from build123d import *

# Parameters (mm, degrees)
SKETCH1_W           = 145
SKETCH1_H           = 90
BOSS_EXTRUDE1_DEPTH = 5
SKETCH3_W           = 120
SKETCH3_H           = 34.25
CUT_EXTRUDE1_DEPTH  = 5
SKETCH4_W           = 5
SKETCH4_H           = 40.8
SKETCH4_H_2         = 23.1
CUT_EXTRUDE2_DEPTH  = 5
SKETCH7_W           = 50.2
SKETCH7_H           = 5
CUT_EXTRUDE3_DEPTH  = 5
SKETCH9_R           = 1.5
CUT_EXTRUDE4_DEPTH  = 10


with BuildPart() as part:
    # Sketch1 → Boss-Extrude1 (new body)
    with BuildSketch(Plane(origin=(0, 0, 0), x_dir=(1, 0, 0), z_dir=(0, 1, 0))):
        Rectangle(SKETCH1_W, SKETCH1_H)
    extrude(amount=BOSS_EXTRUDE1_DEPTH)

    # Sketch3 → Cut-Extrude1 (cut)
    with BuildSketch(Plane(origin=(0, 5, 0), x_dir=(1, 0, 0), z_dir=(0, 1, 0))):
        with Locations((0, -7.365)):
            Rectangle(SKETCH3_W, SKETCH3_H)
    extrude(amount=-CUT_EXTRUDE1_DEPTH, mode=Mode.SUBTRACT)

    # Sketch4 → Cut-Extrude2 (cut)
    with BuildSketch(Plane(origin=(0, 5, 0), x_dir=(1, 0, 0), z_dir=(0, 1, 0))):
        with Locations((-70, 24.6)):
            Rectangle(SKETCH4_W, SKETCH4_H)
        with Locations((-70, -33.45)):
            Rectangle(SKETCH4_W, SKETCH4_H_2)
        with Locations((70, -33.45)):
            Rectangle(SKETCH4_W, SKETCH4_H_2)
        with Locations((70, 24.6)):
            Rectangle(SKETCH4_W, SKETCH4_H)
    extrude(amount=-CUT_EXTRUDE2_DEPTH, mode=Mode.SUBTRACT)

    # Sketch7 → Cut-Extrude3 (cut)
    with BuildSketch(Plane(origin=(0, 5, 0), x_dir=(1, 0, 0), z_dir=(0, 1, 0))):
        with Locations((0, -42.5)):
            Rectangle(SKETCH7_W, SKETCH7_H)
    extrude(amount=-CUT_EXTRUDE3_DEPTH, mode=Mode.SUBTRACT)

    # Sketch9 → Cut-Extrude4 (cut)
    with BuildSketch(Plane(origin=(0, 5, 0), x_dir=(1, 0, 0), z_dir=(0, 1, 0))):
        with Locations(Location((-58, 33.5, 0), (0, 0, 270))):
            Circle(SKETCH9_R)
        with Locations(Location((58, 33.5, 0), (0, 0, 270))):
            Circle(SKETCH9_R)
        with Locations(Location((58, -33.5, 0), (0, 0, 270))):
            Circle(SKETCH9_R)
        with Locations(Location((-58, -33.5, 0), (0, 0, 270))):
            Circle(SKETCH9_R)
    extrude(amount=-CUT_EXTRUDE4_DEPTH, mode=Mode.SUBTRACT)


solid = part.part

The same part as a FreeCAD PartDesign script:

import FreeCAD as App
import Part
import Sketcher
Q = App.Units.Quantity


def add_polygon(sketch, points):
    """Adds a closed chain of lines whose ends are joined by coincident constraints."""
    first, n = sketch.GeometryCount, len(points)
    for a, b in zip(points, points[1:] + points[:1]):
        sketch.addGeometry(Part.LineSegment(App.Vector(*a, 0), App.Vector(*b, 0)), False)
    for i in range(n):
        sketch.addConstraint(Sketcher.Constraint("Coincident", first + i, 2, first + (i + 1) % n, 1))

doc = App.newDocument("Part")
body = doc.addObject("PartDesign::Body", "Body")

sketch1 = body.newObject("Sketcher::SketchObject", "Sketch")
sketch1.AttachmentSupport = (doc.getObject("XZ_Plane"), [""])
sketch1.MapMode = "FlatFace"
add_polygon(sketch1, [(-72, -45), (-72, 45), (72, 45), (72, -45)])
sketch1.addConstraint([
    Sketcher.Constraint("Vertical", 0),
    Sketcher.Constraint("Horizontal", 1),
    Sketcher.Constraint("Vertical", 2),
    Sketcher.Constraint("Horizontal", 3),
    Sketcher.Constraint("Symmetric", 0, 2, 2, 2, -1, 1),
    Sketcher.Constraint("DistanceX", 1, 1, 1, 2, Q("145 mm")),
    Sketcher.Constraint("DistanceY", 0, 1, 0, 2, Q("90 mm")),
])
pad1 = body.newObject("PartDesign::Pad", "Pad")
pad1.Profile = sketch1
pad1.Length = 5
pad1.Reversed = True

sketch2 = body.newObject("Sketcher::SketchObject", "Sketch001")
sketch2.AttachmentSupport = (doc.getObject("XZ_Plane"), [""])
sketch2.MapMode = "FlatFace"
sketch2.AttachmentOffset = App.Placement(App.Vector(0, 0, -5), App.Rotation())
add_polygon(sketch2, [(-60, -10), (-60, 24), (60, 24), (60, -10)])
sketch2.addConstraint([
    Sketcher.Constraint("Vertical", 0),
    Sketcher.Constraint("Horizontal", 1),
    Sketcher.Constraint("Vertical", 2),
    Sketcher.Constraint("Horizontal", 3),
    Sketcher.Constraint("DistanceX", 1, 1, 1, 2, Q("120 mm")),
    Sketcher.Constraint("DistanceX", 0, 2, -1, 1, Q("60 mm")),
    Sketcher.Constraint("DistanceY", 0, 1, 0, 2, Q("34.25 mm")),
    Sketcher.Constraint("DistanceY", -1, 1, 0, 2, Q("24.49 mm")),
])
pocket1 = body.newObject("PartDesign::Pocket", "Pocket")
pocket1.Profile = sketch2
pocket1.Length = 5
pocket1.Reversed = True

sketch3 = body.newObject("Sketcher::SketchObject", "Sketch002")
sketch3.AttachmentSupport = (doc.getObject("XZ_Plane"), [""])
sketch3.MapMode = "FlatFace"
sketch3.AttachmentOffset = App.Placement(App.Vector(0, 0, -5), App.Rotation())
add_polygon(sketch3, [(-72, -45), (-72, -4), (-68, -4), (-68, -45)])
add_polygon(sketch3, [(-72, 22), (-72, 45), (-68, 45), (-68, 22)])
add_polygon(sketch3, [(68, 22), (68, 45), (72, 45), (72, 22)])
add_polygon(sketch3, [(68, -45), (68, -4), (72, -4), (72, -45)])
sketch3.addConstraint([
    Sketcher.Constraint("Vertical", 0),
    Sketcher.Constraint("Horizontal", 1),
    Sketcher.Constraint("Vertical", 2),
    Sketcher.Constraint("Horizontal", 3),
    Sketcher.Constraint("Vertical", 4),
    Sketcher.Constraint("Horizontal", 5),
    Sketcher.Constraint("Vertical", 6),
    Sketcher.Constraint("Horizontal", 7),
    Sketcher.Constraint("Vertical", 8),
    Sketcher.Constraint("Horizontal", 9),
    Sketcher.Constraint("Vertical", 10),
    Sketcher.Constraint("Horizontal", 11),
    Sketcher.Constraint("Vertical", 12),
    Sketcher.Constraint("Horizontal", 13),
    Sketcher.Constraint("Vertical", 14),
    Sketcher.Constraint("Horizontal", 15),
    Sketcher.Constraint("Symmetric", 2, 2, 8, 2, -1, 1),
    Sketcher.Constraint("Symmetric", 4, 2, 14, 2, -1, 1),
    Sketcher.Constraint("Symmetric", 5, 2, 8, 2, -2),
    Sketcher.Constraint("Symmetric", 7, 2, 10, 2, -2),
    Sketcher.Constraint("Symmetric", 1, 2, 12, 2, -2),
    Sketcher.Constraint("Vertical", 3, 2, 4, 2),
    Sketcher.Constraint("DistanceX", 1, 1, 1, 2, Q("5 mm")),
    Sketcher.Constraint("DistanceY", 0, 1, 0, 2, Q("40.8 mm")),
    Sketcher.Constraint("DistanceY", 4, 1, 4, 2, Q("23.1 mm")),
    Sketcher.Constraint("DistanceY", 2, 2, -1, 1, Q("45 mm")),
    Sketcher.Constraint("DistanceX", 5, 2, 8, 2, Q("135 mm")),
])
pocket2 = body.newObject("PartDesign::Pocket", "Pocket001")
pocket2.Profile = sketch3
pocket2.Length = 5
pocket2.Reversed = True

sketch4 = body.newObject("Sketcher::SketchObject", "Sketch003")
sketch4.AttachmentSupport = (doc.getObject("XZ_Plane"), [""])
sketch4.MapMode = "FlatFace"
sketch4.AttachmentOffset = App.Placement(App.Vector(0, 0, -5), App.Rotation())
add_polygon(sketch4, [(-25, 40), (-25, 45), (25, 45), (25, 40)])
sketch4.addConstraint([
    Sketcher.Constraint("Vertical", 0),
    Sketcher.Constraint("Horizontal", 1),
    Sketcher.Constraint("Vertical", 2),
    Sketcher.Constraint("Horizontal", 3),
    Sketcher.Constraint("DistanceY", 0, 1, 0, 2, Q("5 mm")),
    Sketcher.Constraint("DistanceX", 1, 1, 1, 2, Q("50.2 mm")),
    Sketcher.Constraint("DistanceY", -1, 1, 0, 2, Q("45 mm")),
    Sketcher.Constraint("DistanceX", 0, 2, -1, 1, Q("25.1 mm")),
])
pocket3 = body.newObject("PartDesign::Pocket", "Pocket002")
pocket3.Profile = sketch4
pocket3.Length = 5
pocket3.Reversed = True

sketch5 = body.newObject("Sketcher::SketchObject", "Sketch004")
sketch5.AttachmentSupport = (doc.getObject("XZ_Plane"), [""])
sketch5.MapMode = "FlatFace"
sketch5.AttachmentOffset = App.Placement(App.Vector(0, 0, -5), App.Rotation())
sketch5.addGeometry([
    Part.Circle(App.Vector(-58, -33.5, 0), App.Vector(0, 0, 1), 1.5),
    Part.Circle(App.Vector(58, -33.5, 0), App.Vector(0, 0, 1), 1.5),
    Part.Circle(App.Vector(58, 33.5, 0), App.Vector(0, 0, 1), 1.5),
    Part.Circle(App.Vector(-58, 33.5, 0), App.Vector(0, 0, 1), 1.5),
], False)
sketch5.addConstraint([
    Sketcher.Constraint("Equal", 0, 1),
    Sketcher.Constraint("Equal", 1, 2),
    Sketcher.Constraint("Equal", 2, 3),
    Sketcher.Constraint("Symmetric", 0, 3, 2, 3, -1, 1),
    Sketcher.Constraint("Symmetric", 1, 3, 3, 3, -1, 1),
    Sketcher.Constraint("Symmetric", 0, 3, 1, 3, -2),
    Sketcher.Constraint("Diameter", 0, Q("3 mm")),
    Sketcher.Constraint("DistanceX", 0, 3, -1, 1, Q("58 mm")),
    Sketcher.Constraint("DistanceY", 1, 3, 2, 3, Q("67 mm")),
])
pocket4 = body.newObject("PartDesign::Pocket", "Pocket003")
pocket4.Profile = sketch5
pocket4.Length = 10
pocket4.Reversed = True

doc.recompute()
